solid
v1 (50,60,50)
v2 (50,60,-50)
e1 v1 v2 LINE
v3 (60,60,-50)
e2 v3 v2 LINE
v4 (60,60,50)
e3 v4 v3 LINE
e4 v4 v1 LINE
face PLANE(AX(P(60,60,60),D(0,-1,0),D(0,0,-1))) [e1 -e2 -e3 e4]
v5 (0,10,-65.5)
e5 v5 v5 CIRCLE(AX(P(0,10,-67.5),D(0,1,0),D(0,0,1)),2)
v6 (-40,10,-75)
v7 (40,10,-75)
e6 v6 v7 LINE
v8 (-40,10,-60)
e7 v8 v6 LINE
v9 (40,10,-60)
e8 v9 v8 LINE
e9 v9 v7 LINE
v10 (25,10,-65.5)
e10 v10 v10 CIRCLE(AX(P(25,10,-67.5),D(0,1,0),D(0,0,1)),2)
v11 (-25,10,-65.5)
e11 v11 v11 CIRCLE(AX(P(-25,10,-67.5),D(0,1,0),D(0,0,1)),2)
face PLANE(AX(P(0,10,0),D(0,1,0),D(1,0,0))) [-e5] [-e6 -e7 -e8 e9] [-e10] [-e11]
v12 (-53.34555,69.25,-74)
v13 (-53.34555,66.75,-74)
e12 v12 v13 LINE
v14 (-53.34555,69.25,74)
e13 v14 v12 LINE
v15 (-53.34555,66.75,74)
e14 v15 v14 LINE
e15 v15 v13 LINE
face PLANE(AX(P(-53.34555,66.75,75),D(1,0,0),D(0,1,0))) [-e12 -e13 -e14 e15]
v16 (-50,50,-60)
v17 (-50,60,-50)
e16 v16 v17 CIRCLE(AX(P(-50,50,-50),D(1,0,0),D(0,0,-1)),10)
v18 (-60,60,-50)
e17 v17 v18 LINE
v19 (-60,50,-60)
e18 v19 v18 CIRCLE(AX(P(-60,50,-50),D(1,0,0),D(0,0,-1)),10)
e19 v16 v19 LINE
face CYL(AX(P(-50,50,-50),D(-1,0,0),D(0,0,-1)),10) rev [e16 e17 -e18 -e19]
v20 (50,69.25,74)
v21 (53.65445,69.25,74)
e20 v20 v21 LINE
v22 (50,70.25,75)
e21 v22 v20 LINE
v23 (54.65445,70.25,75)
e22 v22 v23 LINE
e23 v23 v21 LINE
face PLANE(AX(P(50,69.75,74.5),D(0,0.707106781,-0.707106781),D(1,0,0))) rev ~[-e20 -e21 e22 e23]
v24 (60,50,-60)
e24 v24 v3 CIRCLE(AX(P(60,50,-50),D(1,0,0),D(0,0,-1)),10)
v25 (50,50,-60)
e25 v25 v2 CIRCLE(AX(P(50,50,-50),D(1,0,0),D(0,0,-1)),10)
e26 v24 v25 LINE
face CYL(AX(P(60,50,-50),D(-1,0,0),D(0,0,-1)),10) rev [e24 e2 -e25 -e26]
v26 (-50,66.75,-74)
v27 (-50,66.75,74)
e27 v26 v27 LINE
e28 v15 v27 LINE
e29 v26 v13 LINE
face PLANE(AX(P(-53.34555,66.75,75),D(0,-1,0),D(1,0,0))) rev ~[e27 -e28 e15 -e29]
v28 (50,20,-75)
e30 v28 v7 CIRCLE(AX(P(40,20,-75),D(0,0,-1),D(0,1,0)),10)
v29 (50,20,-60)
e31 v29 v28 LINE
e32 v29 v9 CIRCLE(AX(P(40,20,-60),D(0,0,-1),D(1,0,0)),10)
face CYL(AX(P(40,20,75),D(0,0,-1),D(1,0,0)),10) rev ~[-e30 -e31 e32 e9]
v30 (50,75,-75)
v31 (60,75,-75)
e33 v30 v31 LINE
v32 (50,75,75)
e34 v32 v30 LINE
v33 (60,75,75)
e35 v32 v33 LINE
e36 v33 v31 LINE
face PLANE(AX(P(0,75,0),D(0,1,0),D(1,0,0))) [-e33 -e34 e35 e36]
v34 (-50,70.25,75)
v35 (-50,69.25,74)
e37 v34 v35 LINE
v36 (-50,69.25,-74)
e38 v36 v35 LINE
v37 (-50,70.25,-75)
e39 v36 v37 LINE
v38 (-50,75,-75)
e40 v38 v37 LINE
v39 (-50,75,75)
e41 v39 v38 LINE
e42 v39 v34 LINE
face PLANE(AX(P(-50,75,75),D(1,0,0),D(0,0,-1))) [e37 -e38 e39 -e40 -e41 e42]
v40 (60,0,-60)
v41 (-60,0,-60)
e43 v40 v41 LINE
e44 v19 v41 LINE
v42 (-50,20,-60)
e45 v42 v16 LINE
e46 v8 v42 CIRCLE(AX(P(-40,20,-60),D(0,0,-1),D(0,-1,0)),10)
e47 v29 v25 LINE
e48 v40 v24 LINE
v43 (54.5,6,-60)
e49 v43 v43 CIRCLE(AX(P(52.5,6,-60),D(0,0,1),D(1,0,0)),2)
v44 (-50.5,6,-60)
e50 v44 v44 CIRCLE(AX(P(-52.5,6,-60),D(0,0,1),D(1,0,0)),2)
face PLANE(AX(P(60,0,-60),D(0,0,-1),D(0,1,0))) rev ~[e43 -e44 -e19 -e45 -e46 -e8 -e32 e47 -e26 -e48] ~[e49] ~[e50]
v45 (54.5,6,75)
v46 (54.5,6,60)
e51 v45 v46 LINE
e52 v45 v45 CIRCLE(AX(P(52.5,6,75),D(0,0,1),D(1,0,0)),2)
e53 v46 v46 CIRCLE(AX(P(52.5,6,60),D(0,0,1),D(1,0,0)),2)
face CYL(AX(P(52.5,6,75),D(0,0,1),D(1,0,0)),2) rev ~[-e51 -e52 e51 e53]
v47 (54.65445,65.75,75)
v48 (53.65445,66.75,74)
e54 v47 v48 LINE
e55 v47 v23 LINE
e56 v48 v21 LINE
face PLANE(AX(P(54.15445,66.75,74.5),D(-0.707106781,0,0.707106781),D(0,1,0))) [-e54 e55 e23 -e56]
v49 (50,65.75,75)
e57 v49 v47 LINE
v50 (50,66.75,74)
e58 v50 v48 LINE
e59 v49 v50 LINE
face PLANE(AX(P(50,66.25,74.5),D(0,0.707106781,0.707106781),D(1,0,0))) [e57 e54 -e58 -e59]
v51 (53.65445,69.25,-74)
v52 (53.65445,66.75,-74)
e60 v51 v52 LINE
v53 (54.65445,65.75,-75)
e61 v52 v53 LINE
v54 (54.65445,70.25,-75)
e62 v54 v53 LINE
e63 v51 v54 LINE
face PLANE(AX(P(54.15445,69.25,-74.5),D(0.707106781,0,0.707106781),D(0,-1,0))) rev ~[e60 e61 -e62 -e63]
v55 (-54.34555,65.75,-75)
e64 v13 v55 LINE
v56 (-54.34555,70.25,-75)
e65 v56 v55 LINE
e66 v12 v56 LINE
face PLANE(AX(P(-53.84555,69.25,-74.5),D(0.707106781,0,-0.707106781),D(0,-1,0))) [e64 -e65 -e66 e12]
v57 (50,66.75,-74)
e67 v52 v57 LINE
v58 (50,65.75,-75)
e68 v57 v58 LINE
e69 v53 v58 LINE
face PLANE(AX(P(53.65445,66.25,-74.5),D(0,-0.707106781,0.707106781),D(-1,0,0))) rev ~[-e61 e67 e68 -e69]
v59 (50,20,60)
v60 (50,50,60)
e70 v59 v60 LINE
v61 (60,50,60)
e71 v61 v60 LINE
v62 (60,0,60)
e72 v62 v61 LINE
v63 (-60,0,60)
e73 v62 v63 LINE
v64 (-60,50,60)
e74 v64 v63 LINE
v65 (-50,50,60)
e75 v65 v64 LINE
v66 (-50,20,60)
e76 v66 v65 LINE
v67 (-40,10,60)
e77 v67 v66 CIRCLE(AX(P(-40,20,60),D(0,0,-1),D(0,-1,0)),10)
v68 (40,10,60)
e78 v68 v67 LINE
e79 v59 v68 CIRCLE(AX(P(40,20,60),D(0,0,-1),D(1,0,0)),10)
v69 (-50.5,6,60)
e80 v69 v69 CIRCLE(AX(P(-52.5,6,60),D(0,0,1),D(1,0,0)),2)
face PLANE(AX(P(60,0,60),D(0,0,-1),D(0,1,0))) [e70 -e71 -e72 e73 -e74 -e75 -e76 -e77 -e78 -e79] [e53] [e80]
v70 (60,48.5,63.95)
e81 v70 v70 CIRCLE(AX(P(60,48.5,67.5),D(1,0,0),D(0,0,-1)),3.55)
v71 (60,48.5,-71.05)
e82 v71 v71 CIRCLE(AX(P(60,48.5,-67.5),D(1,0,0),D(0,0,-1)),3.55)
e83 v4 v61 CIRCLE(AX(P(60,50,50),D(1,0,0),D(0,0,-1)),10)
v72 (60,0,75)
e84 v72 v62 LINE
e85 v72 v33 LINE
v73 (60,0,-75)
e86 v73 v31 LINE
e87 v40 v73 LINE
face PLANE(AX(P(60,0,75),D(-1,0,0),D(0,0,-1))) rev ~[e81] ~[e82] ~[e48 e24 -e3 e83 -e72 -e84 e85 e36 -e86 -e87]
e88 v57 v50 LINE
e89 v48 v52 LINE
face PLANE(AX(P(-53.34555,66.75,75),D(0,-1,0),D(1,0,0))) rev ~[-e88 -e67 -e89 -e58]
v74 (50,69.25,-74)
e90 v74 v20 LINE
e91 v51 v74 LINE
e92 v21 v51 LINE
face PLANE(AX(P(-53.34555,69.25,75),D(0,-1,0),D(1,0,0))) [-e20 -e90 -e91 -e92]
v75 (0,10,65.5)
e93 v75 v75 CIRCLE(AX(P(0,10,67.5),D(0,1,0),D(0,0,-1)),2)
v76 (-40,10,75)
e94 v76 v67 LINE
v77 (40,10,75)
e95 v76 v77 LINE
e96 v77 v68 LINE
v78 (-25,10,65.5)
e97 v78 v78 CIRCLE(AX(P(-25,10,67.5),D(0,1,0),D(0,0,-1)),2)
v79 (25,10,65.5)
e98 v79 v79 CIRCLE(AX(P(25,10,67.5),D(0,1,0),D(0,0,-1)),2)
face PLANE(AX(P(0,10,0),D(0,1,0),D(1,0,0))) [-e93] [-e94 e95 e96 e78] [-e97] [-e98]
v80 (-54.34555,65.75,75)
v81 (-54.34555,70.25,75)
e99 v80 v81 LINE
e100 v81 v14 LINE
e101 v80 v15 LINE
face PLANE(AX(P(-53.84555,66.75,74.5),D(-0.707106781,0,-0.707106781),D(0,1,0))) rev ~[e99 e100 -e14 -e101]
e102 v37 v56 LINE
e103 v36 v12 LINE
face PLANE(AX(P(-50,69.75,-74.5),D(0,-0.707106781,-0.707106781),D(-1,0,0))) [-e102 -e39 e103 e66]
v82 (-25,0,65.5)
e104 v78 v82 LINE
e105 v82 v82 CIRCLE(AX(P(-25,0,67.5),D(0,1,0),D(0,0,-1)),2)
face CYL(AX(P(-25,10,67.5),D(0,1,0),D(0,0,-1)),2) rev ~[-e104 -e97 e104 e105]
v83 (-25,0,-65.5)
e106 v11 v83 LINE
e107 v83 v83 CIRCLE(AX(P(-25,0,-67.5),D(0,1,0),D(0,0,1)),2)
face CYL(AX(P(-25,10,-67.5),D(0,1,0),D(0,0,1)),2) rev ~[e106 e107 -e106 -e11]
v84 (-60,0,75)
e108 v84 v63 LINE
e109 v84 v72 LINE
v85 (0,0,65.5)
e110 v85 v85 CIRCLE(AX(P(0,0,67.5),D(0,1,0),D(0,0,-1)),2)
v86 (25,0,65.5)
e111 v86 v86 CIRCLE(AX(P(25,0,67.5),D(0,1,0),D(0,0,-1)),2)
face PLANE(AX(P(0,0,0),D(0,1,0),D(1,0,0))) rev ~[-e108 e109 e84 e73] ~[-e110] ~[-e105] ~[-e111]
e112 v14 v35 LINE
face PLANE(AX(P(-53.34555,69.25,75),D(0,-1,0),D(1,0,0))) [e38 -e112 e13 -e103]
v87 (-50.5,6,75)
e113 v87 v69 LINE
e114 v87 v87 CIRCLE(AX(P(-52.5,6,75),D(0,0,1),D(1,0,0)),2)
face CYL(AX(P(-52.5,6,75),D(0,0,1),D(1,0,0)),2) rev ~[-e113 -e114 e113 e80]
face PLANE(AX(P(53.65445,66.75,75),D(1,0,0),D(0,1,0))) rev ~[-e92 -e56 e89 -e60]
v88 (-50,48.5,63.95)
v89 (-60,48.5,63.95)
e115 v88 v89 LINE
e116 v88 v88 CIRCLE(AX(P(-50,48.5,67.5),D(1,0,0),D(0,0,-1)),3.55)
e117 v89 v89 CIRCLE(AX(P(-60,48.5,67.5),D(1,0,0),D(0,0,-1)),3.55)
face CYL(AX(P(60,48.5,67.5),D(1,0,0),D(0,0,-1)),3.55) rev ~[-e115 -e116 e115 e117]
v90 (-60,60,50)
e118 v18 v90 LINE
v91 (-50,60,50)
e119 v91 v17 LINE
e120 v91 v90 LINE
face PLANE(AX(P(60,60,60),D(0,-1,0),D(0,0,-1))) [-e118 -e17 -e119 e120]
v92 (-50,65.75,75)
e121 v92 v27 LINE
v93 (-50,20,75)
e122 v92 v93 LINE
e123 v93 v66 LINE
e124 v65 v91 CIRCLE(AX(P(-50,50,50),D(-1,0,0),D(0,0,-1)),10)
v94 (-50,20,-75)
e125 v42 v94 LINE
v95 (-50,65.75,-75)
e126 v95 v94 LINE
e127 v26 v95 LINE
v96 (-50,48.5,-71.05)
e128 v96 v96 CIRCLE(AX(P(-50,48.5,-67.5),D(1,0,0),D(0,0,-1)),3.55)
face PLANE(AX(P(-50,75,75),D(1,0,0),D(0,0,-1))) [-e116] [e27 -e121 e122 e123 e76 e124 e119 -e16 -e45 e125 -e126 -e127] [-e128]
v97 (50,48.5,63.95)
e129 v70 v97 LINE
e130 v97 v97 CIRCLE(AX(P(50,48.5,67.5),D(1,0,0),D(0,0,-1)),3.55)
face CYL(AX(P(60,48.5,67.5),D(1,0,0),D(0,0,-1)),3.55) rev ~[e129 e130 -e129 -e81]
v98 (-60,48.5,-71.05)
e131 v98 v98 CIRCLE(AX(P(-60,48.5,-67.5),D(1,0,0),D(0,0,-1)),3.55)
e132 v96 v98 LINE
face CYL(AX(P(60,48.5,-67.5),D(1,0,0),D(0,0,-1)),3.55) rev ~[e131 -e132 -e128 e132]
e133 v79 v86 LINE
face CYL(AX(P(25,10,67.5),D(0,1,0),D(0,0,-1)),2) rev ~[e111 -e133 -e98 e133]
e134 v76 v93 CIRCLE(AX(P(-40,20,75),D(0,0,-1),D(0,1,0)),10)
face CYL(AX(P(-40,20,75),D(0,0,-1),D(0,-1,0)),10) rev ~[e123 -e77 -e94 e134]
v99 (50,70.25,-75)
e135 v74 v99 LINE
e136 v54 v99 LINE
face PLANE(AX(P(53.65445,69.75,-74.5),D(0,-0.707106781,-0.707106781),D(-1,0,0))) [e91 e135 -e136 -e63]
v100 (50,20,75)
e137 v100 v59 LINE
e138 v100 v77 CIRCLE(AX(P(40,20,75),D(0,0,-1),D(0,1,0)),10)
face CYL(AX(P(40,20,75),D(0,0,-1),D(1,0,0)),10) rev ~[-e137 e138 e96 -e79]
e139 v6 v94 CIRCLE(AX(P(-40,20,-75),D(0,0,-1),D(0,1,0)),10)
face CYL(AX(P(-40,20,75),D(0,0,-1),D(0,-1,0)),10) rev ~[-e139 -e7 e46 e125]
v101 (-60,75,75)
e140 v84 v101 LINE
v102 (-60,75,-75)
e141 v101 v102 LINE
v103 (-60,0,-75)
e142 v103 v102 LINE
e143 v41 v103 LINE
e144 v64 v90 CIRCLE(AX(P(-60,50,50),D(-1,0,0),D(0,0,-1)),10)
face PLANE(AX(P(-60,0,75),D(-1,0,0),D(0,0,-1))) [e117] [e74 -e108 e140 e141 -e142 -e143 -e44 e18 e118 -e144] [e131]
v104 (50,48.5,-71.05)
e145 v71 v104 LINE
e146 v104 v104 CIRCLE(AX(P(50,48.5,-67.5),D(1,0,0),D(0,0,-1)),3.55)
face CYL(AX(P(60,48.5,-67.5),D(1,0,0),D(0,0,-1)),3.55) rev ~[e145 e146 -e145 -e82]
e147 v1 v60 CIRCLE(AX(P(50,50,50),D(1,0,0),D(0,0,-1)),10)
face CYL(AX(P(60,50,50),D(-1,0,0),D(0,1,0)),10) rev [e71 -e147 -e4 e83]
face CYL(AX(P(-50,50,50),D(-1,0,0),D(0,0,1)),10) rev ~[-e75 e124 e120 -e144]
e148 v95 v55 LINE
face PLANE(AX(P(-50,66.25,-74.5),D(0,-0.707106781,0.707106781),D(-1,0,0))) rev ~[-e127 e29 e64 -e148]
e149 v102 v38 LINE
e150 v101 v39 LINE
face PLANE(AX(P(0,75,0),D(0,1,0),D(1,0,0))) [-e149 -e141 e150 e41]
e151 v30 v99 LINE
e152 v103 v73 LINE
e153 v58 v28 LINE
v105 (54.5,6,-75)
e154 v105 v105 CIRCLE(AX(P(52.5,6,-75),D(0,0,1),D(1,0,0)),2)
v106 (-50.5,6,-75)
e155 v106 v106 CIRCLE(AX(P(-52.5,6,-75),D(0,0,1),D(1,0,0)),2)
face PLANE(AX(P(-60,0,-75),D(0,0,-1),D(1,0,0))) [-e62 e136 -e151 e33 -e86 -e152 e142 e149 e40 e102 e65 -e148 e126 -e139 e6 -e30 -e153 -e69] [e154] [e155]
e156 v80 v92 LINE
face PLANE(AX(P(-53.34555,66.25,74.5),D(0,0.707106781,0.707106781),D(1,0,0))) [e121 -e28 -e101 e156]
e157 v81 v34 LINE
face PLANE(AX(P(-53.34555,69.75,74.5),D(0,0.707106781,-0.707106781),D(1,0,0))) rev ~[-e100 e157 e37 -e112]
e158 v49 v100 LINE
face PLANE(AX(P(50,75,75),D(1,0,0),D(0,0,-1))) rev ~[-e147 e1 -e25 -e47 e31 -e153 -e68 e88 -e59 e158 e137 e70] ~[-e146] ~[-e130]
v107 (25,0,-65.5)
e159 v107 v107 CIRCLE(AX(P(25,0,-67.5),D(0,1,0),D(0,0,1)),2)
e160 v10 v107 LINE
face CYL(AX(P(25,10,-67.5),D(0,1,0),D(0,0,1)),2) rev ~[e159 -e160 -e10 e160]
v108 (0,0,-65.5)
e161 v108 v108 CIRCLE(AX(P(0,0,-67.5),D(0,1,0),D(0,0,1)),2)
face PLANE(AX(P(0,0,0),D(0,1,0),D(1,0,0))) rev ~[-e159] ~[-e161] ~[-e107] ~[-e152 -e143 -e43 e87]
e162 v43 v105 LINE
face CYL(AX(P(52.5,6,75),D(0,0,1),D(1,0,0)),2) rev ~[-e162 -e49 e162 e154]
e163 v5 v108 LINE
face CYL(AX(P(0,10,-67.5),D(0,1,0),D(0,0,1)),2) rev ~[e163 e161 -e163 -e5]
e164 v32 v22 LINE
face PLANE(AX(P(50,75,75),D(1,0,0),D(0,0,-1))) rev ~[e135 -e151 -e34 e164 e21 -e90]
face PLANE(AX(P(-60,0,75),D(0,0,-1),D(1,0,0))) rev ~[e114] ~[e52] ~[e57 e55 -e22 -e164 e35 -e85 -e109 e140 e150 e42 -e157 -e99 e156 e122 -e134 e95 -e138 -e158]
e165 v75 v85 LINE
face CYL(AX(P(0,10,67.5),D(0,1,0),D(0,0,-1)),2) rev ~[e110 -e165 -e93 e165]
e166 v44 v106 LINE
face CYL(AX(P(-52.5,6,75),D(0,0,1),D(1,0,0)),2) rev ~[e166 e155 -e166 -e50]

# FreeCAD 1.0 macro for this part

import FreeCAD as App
import Part
import Sketcher
Q = App.Units.Quantity


def edges_at(feature, points):
    """Names of the edges that pass closest to the given points."""
    edges = feature.Shape.Edges
    near = lambda p: min(range(len(edges)), key=lambda i: edges[i].distToShape(Part.Vertex(*p))[0])
    return sorted({f"Edge{near(p) + 1}" for p in points})


def add_polygon(sketch, points):
    """Adds a closed chain of lines whose ends are joined by coincident constraints."""
    first, n = sketch.GeometryCount, len(points)
    for a, b in zip(points, points[1:] + points[:1]):
        sketch.addGeometry(Part.LineSegment(App.Vector(*a, 0), App.Vector(*b, 0)), False)
    for i in range(n):
        sketch.addConstraint(Sketcher.Constraint("Coincident", first + i, 2, first + (i + 1) % n, 1))

doc = App.newDocument("Part")
body = doc.addObject("PartDesign::Body", "Body")

# Sketch on XZ plane
sketch1 = body.newObject("Sketcher::SketchObject", "Sketch")
sketch1.AttachmentSupport = (doc.getObject("XZ_Plane"), [""])
sketch1.MapMode = "FlatFace"
add_polygon(sketch1, [(-60, -75), (-60, 75), (60, 75), (60, -75)])  # lines 0-3
sketch1.addConstraint([
    Sketcher.Constraint("Vertical", 0),
    Sketcher.Constraint("Horizontal", 1),
    Sketcher.Constraint("Vertical", 2),
    Sketcher.Constraint("Horizontal", 3),
    Sketcher.Constraint("Symmetric", 0, 2, 2, 2, -1, 1),
    Sketcher.Constraint("DistanceX", 1, 1, 1, 2, Q("120 mm")),
    Sketcher.Constraint("DistanceY", 0, 1, 0, 2, Q("150 mm")),
])
pad1 = body.newObject("PartDesign::Pad", "Pad")
pad1.Profile = sketch1
pad1.Length = 75
pad1.Reversed = True

# Sketch on XY plane
sketch2 = body.newObject("Sketcher::SketchObject", "Sketch001")
sketch2.AttachmentSupport = (doc.getObject("XY_Plane"), [""])
sketch2.MapMode = "FlatFace"
sketch2.AttachmentOffset = App.Placement(App.Vector(0, 0, 75), App.Rotation())
add_polygon(sketch2, [(-53.3, 69.2), (-53.3, 66.8), (53.7, 66.8), (53.7, 69.2)])  # lines 0-3
sketch2.addConstraint([
    Sketcher.Constraint("Vertical", 0),
    Sketcher.Constraint("Horizontal", 1),
    Sketcher.Constraint("Vertical", 2),
    Sketcher.Constraint("Horizontal", 3),
    Sketcher.Constraint("DistanceX", 1, 1, 1, 2, Q("107 mm")),
    Sketcher.Constraint("DistanceY", 0, 2, 0, 1, Q("2.5 mm")),
    Sketcher.Constraint("DistanceY", -1, 1, 0, 2, Q("66.75 mm")),
    Sketcher.Constraint("DistanceX", 0, 2, -1, 1, Q("53.34555 mm")),
])
pocket1 = body.newObject("PartDesign::Pocket", "Pocket")
pocket1.Profile = sketch2
pocket1.Type = "ThroughAll"

# Sketch on XZ plane
sketch3 = body.newObject("Sketcher::SketchObject", "Sketch002")
sketch3.AttachmentSupport = (doc.getObject("XZ_Plane"), [""])
sketch3.MapMode = "FlatFace"
sketch3.AttachmentOffset = App.Placement(App.Vector(0, 0, -75), App.Rotation())
add_polygon(sketch3, [(-50, -75), (-50, 75), (50, 75), (50, -75)])  # lines 0-3
sketch3.addConstraint([
    Sketcher.Constraint("Vertical", 0),
    Sketcher.Constraint("Horizontal", 1),
    Sketcher.Constraint("Vertical", 2),
    Sketcher.Constraint("Horizontal", 3),
    Sketcher.Constraint("Symmetric", 0, 2, 2, 2, -1, 1),
    Sketcher.Constraint("DistanceX", 1, 1, 1, 2, Q("100 mm")),
    Sketcher.Constraint("DistanceY", 0, 1, 0, 2, Q("150 mm")),
])
pocket2 = body.newObject("PartDesign::Pocket", "Pocket001")
pocket2.Profile = sketch3
pocket2.Length = 65
pocket2.Reversed = True
doc.recompute()

fillet = body.newObject("PartDesign::Fillet", "Fillet")
fillet.Base = (pocket2, edges_at(pocket2, [(50, 10, 0), (-50, 10, 0)]))
fillet.Radius = 10

# Sketch on XZ plane
sketch4 = body.newObject("Sketcher::SketchObject", "Sketch003")
sketch4.AttachmentSupport = (doc.getObject("XZ_Plane"), [""])
sketch4.MapMode = "FlatFace"
sketch4.AttachmentOffset = App.Placement(App.Vector(0, 0, -10), App.Rotation())
sketch4.addGeometry([
    Part.Circle(App.Vector(0, -67.5, 0), App.Vector(0, 0, 1), 2),  # 0
    Part.Circle(App.Vector(25, -67.5, 0), App.Vector(0, 0, 1), 2),  # 1
    Part.Circle(App.Vector(-25, -67.5, 0), App.Vector(0, 0, 1), 2),  # 2
    Part.Circle(App.Vector(-25, 67.5, 0), App.Vector(0, 0, 1), 2),  # 3
    Part.Circle(App.Vector(25, 67.5, 0), App.Vector(0, 0, 1), 2),  # 4
    Part.Circle(App.Vector(0, 67.5, 0), App.Vector(0, 0, 1), 2),  # 5
], False)
sketch4.addConstraint([
    Sketcher.Constraint("Equal", 0, 1),
    Sketcher.Constraint("Equal", 1, 2),
    Sketcher.Constraint("Equal", 2, 3),
    Sketcher.Constraint("Equal", 3, 4),
    Sketcher.Constraint("Equal", 4, 5),
    Sketcher.Constraint("Symmetric", 1, 3, 3, 3, -1, 1),
    Sketcher.Constraint("Symmetric", 2, 3, 4, 3, -1, 1),
    Sketcher.Constraint("Symmetric", 0, 3, 5, 3, -1, 1),
    Sketcher.Constraint("Symmetric", 1, 3, 2, 3, -2),
    Sketcher.Constraint("PointOnObject", 0, 3, -2),
    Sketcher.Constraint("Horizontal", 0, 3, 1, 3),
    Sketcher.Constraint("Diameter", 0, Q("4 mm")),
    Sketcher.Constraint("DistanceX", -1, 1, 1, 3, Q("25 mm")),
    Sketcher.Constraint("DistanceY", 2, 3, 3, 3, Q("135 mm")),
])
pocket3 = body.newObject("PartDesign::Pocket", "Pocket002")
pocket3.Profile = sketch4
pocket3.Type = "ThroughAll"
pocket3.Reversed = True

# Sketch on XY plane
sketch5 = body.newObject("Sketcher::SketchObject", "Sketch004")
sketch5.AttachmentSupport = (doc.getObject("XY_Plane"), [""])
sketch5.MapMode = "FlatFace"
sketch5.AttachmentOffset = App.Placement(App.Vector(0, 0, 75), App.Rotation())
sketch5.addGeometry([
    Part.Circle(App.Vector(-52.5, 6, 0), App.Vector(0, 0, 1), 2),
    Part.Circle(App.Vector(52.5, 6, 0), App.Vector(0, 0, 1), 2),
], False)
sketch5.addConstraint([
    Sketcher.Constraint("Equal", 0, 1),
    Sketcher.Constraint("Symmetric", 0, 3, 1, 3, -2),
    Sketcher.Constraint("Diameter", 0, Q("4 mm")),
    Sketcher.Constraint("DistanceY", -1, 1, 0, 3, Q("6 mm")),
    Sketcher.Constraint("DistanceX", 0, 3, 1, 3, Q("105 mm")),
])
pocket4 = body.newObject("PartDesign::Pocket", "Pocket003")
pocket4.Profile = sketch5
pocket4.Type = "ThroughAll"

# Sketch on YZ plane
sketch6 = body.newObject("Sketcher::SketchObject", "Sketch005")
sketch6.AttachmentSupport = (doc.getObject("YZ_Plane"), [""])
sketch6.MapMode = "FlatFace"
sketch6.AttachmentOffset = App.Placement(App.Vector(0, 0, 60), App.Rotation())
sketch6.addGeometry([
    Part.Circle(App.Vector(48.5, -67.5, 0), App.Vector(0, 0, 1), 3.5),
    Part.Circle(App.Vector(48.5, 67.5, 0), App.Vector(0, 0, 1), 3.5),
], False)
sketch6.addConstraint([
    Sketcher.Constraint("Equal", 0, 1),
    Sketcher.Constraint("Symmetric", 0, 3, 1, 3, -1),
    Sketcher.Constraint("Diameter", 0, Q("7.1 mm")),
    Sketcher.Constraint("DistanceY", 0, 3, 1, 3, Q("135 mm")),
    Sketcher.Constraint("DistanceX", -1, 1, 0, 3, Q("48.5 mm")),
])
pocket5 = body.newObject("PartDesign::Pocket", "Pocket004")
pocket5.Profile = sketch6
pocket5.Type = "ThroughAll"
doc.recompute()

chamfer = body.newObject("PartDesign::Chamfer", "Chamfer")
chamfer.Base = (pocket5, edges_at(pocket5, [
    (53.654, 68, -75),
    (-51.673, 66.75, -75),
    (-53.346, 68, -75),
    (51.827, 69.25, -75),
    (53.654, 68, 75),
    (51.827, 69.25, 75),
    (-53.346, 68, 75),
    (-51.673, 66.75, 75),
    (-51.673, 69.25, 75),
    (-51.673, 69.25, -75),
    (51.827, 66.75, 75),
    (51.827, 66.75, -75),
]))
chamfer.Size = 1

# Sketch on YZ plane
sketch7 = body.newObject("Sketcher::SketchObject", "Sketch006")
sketch7.AttachmentSupport = (doc.getObject("YZ_Plane"), [""])
sketch7.MapMode = "FlatFace"
sketch7.AttachmentOffset = App.Placement(App.Vector(0, 0, 60), App.Rotation())
add_polygon(sketch7, [(60, 60), (0, 60), (0, -60), (60, -60)])  # lines 0-3
sketch7.addConstraint([
    Sketcher.Constraint("Horizontal", 0),
    Sketcher.Constraint("Vertical", 1),
    Sketcher.Constraint("Horizontal", 2),
    Sketcher.Constraint("Vertical", 3),
    Sketcher.Constraint("Symmetric", 0, 2, 1, 2, -1, 1),
    Sketcher.Constraint("DistanceX", 0, 2, 0, 1, Q("60 mm")),
    Sketcher.Constraint("DistanceY", 1, 2, 1, 1, Q("120 mm")),
])
pocket6 = body.newObject("PartDesign::Pocket", "Pocket005")
pocket6.Profile = sketch7
pocket6.Type = "ThroughAll"
doc.recompute()

fillet2 = body.newObject("PartDesign::Fillet", "Fillet001")
fillet2.Base = (pocket6, edges_at(pocket6, [
    (55, 60, 60),
    (-55, 60, 60),
    (-55, 60, -60),
    (55, 60, -60),
]))
fillet2.Radius = 10

doc.recompute()
